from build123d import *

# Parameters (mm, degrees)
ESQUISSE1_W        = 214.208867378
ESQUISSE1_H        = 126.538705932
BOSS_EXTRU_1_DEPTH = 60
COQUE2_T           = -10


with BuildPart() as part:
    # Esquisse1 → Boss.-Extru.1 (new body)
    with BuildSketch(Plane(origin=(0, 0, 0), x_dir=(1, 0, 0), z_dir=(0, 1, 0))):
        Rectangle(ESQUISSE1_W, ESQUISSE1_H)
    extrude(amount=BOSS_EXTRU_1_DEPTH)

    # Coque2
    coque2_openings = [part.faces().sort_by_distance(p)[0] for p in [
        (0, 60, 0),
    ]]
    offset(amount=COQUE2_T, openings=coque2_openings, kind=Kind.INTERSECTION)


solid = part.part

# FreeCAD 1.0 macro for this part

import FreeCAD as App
import Part
import Sketcher

V = App.Vector


def faces_at(feature, points):
    """Names of the faces that lie closest to the given points."""
    faces = feature.Shape.Faces
    near = lambda p: min(range(len(faces)), key=lambda i: faces[i].distToShape(Part.Vertex(*p))[0])
    return sorted({f"Face{near(p) + 1}" for p in points})

doc = App.newDocument("Part")
body = doc.addObject("PartDesign::Body", "Body")

sketch1 = body.newObject("Sketcher::SketchObject", "Sketch")
sketch1.AttachmentSupport = (doc.getObject("XZ_Plane"), [""])
sketch1.MapMode = "FlatFace"
sketch1.addGeometry([
    Part.LineSegment(V(-107, -63, 0), V(-107, 63, 0)),
    Part.LineSegment(V(-107, 63, 0), V(107, 63, 0)),
    Part.LineSegment(V(107, 63, 0), V(107, -63, 0)),
    Part.LineSegment(V(107, -63, 0), V(-107, -63, 0)),
], False)
sketch1.addConstraint([
    Sketcher.Constraint("Coincident", 0, 2, 1, 1),
    Sketcher.Constraint("Coincident", 1, 2, 2, 1),
    Sketcher.Constraint("Coincident", 2, 2, 3, 1),
    Sketcher.Constraint("Coincident", 3, 2, 0, 1),
    Sketcher.Constraint("Vertical", 0),
    Sketcher.Constraint("Horizontal", 1),
    Sketcher.Constraint("Vertical", 2),
    Sketcher.Constraint("Horizontal", 3),
    Sketcher.Constraint("Symmetric", 0, 2, 2, 2, -1, 1),
    Sketcher.Constraint("DistanceX", 1, 1, 1, 2, 214.208867),
    Sketcher.Constraint("DistanceY", 0, 1, 0, 2, 126.538706),
])
pad1 = body.newObject("PartDesign::Pad", "Pad")
pad1.Profile = sketch1
pad1.Length = 60
pad1.Reversed = True
doc.recompute()

thickness = body.newObject("PartDesign::Thickness", "Thickness")
thickness.Base = (pad1, faces_at(pad1, [(0, 60, 0)]))
thickness.Value = 10
thickness.Reversed = True
thickness.Join = "Intersection"

doc.recompute()
